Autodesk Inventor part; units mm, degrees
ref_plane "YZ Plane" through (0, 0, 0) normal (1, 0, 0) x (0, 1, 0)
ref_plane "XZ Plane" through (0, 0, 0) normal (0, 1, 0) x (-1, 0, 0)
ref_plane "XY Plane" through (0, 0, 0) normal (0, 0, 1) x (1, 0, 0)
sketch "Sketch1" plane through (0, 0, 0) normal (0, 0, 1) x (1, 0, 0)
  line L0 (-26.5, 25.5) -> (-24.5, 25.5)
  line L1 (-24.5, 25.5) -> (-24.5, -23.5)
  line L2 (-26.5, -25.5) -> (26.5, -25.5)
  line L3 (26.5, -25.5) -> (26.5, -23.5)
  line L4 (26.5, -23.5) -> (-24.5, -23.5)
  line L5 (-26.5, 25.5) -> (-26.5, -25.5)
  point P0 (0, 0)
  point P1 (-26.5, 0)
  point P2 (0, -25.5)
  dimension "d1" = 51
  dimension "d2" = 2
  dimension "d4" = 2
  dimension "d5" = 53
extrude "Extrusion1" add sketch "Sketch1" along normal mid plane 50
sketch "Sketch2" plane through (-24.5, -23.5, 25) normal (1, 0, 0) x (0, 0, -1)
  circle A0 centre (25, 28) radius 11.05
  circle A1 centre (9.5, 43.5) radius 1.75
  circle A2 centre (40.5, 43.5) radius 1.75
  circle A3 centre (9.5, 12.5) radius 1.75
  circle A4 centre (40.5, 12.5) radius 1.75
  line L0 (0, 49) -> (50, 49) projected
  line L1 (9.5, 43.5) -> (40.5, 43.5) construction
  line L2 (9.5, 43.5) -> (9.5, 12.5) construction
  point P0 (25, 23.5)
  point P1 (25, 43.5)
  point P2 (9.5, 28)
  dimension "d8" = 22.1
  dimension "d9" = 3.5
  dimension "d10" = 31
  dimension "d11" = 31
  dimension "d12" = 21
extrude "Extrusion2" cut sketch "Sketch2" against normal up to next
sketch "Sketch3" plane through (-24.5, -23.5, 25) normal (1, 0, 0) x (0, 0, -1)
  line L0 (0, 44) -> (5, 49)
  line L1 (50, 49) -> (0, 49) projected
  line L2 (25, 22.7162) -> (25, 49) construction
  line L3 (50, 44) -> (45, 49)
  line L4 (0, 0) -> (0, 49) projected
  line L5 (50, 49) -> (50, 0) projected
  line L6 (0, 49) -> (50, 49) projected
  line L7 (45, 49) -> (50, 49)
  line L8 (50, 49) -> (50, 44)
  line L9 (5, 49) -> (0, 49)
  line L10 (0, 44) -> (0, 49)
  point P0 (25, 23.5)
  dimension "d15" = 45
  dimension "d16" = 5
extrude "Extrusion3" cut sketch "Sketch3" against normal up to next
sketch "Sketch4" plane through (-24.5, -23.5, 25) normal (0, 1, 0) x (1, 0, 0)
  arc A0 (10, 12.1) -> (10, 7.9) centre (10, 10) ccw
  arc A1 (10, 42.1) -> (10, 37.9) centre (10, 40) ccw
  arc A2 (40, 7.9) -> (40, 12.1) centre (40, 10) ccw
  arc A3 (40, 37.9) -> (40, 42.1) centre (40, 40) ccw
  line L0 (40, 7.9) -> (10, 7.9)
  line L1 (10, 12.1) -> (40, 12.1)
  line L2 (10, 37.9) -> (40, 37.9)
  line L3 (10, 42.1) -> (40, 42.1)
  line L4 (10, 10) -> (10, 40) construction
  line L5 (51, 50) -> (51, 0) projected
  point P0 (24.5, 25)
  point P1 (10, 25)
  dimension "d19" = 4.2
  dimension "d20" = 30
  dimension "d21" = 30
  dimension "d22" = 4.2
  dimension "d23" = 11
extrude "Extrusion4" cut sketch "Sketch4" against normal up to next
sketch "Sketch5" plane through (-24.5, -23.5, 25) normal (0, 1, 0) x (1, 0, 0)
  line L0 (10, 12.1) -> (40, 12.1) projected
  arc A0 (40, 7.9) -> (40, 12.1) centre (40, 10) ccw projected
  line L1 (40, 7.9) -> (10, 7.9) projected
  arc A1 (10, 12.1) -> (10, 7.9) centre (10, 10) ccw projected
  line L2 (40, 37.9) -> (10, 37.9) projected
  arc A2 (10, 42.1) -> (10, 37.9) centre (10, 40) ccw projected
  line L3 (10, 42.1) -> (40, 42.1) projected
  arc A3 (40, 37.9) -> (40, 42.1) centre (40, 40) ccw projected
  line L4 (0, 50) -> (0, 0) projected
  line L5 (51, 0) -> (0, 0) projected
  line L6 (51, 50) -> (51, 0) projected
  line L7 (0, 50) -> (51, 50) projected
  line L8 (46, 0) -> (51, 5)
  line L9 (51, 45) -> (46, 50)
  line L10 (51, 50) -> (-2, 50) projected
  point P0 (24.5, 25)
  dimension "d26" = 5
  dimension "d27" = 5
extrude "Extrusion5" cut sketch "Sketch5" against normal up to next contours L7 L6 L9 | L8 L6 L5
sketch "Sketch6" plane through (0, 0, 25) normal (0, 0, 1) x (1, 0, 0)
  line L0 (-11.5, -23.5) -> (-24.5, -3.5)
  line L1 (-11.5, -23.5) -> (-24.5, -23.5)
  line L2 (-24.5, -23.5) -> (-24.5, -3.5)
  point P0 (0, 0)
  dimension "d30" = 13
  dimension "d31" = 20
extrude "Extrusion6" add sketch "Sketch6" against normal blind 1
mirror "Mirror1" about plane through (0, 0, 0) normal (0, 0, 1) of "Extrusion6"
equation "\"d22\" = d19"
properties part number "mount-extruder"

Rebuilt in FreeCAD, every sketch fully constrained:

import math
import FreeCAD as App
import Part
import Sketcher
from FreeCAD import Vector

doc = App.newDocument("Part")
params = doc.addObject("Spreadsheet::Sheet", "Params")
for row, (alias, value) in enumerate([
    ("sketch1_width", "2 mm"),
    ("sketch1_width2", "53 mm"),
    ("pad1_length", "50 mm"),
    ("sketch2_diameter", "22.1 mm"),
    ("sketch2_diameter2", "3.5 mm"),
    ("sketch3_width", "5 mm"),
    ("sketch4_radius", "2.1 mm"),
    ("sketch4_width", "30 mm"),
    ("sketch5_width", "5 mm"),
    ("sketch6_width", "13 mm"),
    ("sketch6_height", "20 mm"),
    ("pad2_length", "1 mm"),
], start=1):
    params.set(f"A{row}", alias)
    params.set(f"B{row}", "=" + value)
    params.setAlias(f"B{row}", alias)

body = doc.addObject("PartDesign::Body", "Body")

sketch1 = body.newObject("Sketcher::SketchObject", "Sketch")
sketch1.AttachmentSupport = (doc.getObject("XY_Plane"), [""])
sketch1.MapMode = "FlatFace"
sketch1.addGeometry([
    Part.LineSegment(Vector(-24.5, 25.5, 0), Vector(-26.5, 25.5, 0)),
    Part.LineSegment(Vector(-26.5, 25.5, 0), Vector(-26.5, -25.5, 0)),
    Part.LineSegment(Vector(-26.5, -25.5, 0), Vector(26.5, -25.5, 0)),
    Part.LineSegment(Vector(26.5, -25.5, 0), Vector(26.5, -23.5, 0)),
    Part.LineSegment(Vector(26.5, -23.5, 0), Vector(-24.5, -23.5, 0)),
    Part.LineSegment(Vector(-24.5, -23.5, 0), Vector(-24.5, 25.5, 0)),
], False)
sketch1.addConstraint([
    Sketcher.Constraint("Coincident", 0, 2, 1, 1),
    Sketcher.Constraint("Coincident", 1, 2, 2, 1),
    Sketcher.Constraint("Coincident", 2, 2, 3, 1),
    Sketcher.Constraint("Coincident", 3, 2, 4, 1),
    Sketcher.Constraint("Coincident", 4, 2, 5, 1),
    Sketcher.Constraint("Coincident", 5, 2, 0, 1),
    Sketcher.Constraint("Horizontal", 0),
    Sketcher.Constraint("Vertical", 1),
    Sketcher.Constraint("Horizontal", 2),
    Sketcher.Constraint("Vertical", 3),
    Sketcher.Constraint("Horizontal", 4),
    Sketcher.Constraint("Vertical", 5),
    Sketcher.Constraint("Symmetric", 0, 2, 2, 2, -1, 1),
    Sketcher.Constraint("Equal", 4, 1),
    Sketcher.Constraint("Equal", 0, 3),
    Sketcher.Constraint("DistanceX", 0, 2, 0, 1, 2.0),
    Sketcher.Constraint("DistanceX", 2, 1, 2, 2, 53.0),
])
sketch1.setExpression("Constraints[15]", "Params.sketch1_width")
sketch1.setExpression("Constraints[16]", "Params.sketch1_width2")
pad1 = body.newObject("PartDesign::Pad", "Pad")
pad1.Profile = sketch1
pad1.setExpression("Length", "Params.pad1_length")
pad1.Midplane = True

sketch2 = body.newObject("Sketcher::SketchObject", "Sketch001")
sketch2.AttachmentSupport = (doc.getObject("YZ_Plane"), [""])
sketch2.MapMode = "FlatFace"
sketch2.AttachmentOffset = App.Placement(Vector(0, 0, -24.5), App.Rotation())
sketch2.addGeometry([
    Part.Circle(Vector(4.5, 0, 0), Vector(0, 0, 1), 11.05),
    Part.Circle(Vector(20, 15.5, 0), Vector(0, 0, 1), 1.75),
    Part.Circle(Vector(20, -15.5, 0), Vector(0, 0, 1), 1.75),
    Part.Circle(Vector(-11, 15.5, 0), Vector(0, 0, 1), 1.75),
    Part.Circle(Vector(-11, -15.5, 0), Vector(0, 0, 1), 1.75),
], False)
sketch2.addConstraint([
    Sketcher.Constraint("Equal", 1, 2),
    Sketcher.Constraint("Equal", 2, 3),
    Sketcher.Constraint("Equal", 3, 4),
    Sketcher.Constraint("Symmetric", 1, 3, 2, 3, -1),
    Sketcher.Constraint("Symmetric", 3, 3, 4, 3, -1),
    Sketcher.Constraint("PointOnObject", 0, 3, -1),
    Sketcher.Constraint("Horizontal", 1, 3, 3, 3),
    Sketcher.Constraint("Diameter", 0, 22.1),
    Sketcher.Constraint("Diameter", 1, 3.5),
    Sketcher.Constraint("DistanceY", 2, 3, 1, 3, 31.0),
    Sketcher.Constraint("DistanceX", 3, 3, 1, 3, 31.0),
    Sketcher.Constraint("DistanceX", -1, 1, 1, 3, 20.0),
    Sketcher.Constraint("DistanceX", -1, 1, 0, 3, 4.5),
])
sketch2.setExpression("Constraints[7]", "Params.sketch2_diameter")
sketch2.setExpression("Constraints[8]", "Params.sketch2_diameter2")
pocket1 = body.newObject("PartDesign::Pocket", "Pocket")
pocket1.Profile = sketch2
pocket1.Type = "UpToFirst"

sketch3 = body.newObject("Sketcher::SketchObject", "Sketch002")
sketch3.AttachmentSupport = (doc.getObject("YZ_Plane"), [""])
sketch3.MapMode = "FlatFace"
sketch3.AttachmentOffset = App.Placement(Vector(0, 0, -24.5), App.Rotation())
sketch3.addGeometry([
    Part.LineSegment(Vector(25.5, 25, 0), Vector(20.5, 25, 0)),
    Part.LineSegment(Vector(20.5, 25, 0), Vector(25.5, 20, 0)),
    Part.LineSegment(Vector(25.5, 20, 0), Vector(25.5, 25, 0)),
    Part.LineSegment(Vector(25.5, -25, 0), Vector(25.5, -20, 0)),
    Part.LineSegment(Vector(25.5, -20, 0), Vector(20.5, -25, 0)),
    Part.LineSegment(Vector(20.5, -25, 0), Vector(25.5, -25, 0)),
], False)
sketch3.addConstraint([
    Sketcher.Constraint("Coincident", 0, 2, 1, 1),
    Sketcher.Constraint("Coincident", 1, 2, 2, 1),
    Sketcher.Constraint("Coincident", 2, 2, 0, 1),
    Sketcher.Constraint("Coincident", 3, 2, 4, 1),
    Sketcher.Constraint("Coincident", 4, 2, 5, 1),
    Sketcher.Constraint("Coincident", 5, 2, 3, 1),
    Sketcher.Constraint("Horizontal", 0),
    Sketcher.Constraint("Vertical", 2),
    Sketcher.Constraint("Vertical", 3),
    Sketcher.Constraint("Horizontal", 5),
    Sketcher.Constraint("Symmetric", 1, 2, 3, 2, -1),
    Sketcher.Constraint("Symmetric", 0, 2, 4, 2, -1),
    Sketcher.Constraint("Perpendicular", 1, 4),
    Sketcher.Constraint("DistanceX", 0, 2, 0, 1, 5.0),
    Sketcher.Constraint("DistanceY", 3, 2, 2, 2, 45.0),
    Sketcher.Constraint("DistanceX", -1, 1, 0, 2, 20.5),
])
sketch3.setExpression("Constraints[13]", "Params.sketch3_width")
pocket2 = body.newObject("PartDesign::Pocket", "Pocket001")
pocket2.Profile = sketch3
pocket2.Type = "UpToFirst"

sketch4 = body.newObject("Sketcher::SketchObject", "Sketch003")
sketch4.AttachmentSupport = (doc.getObject("XZ_Plane"), [""])
sketch4.MapMode = "FlatFace"
sketch4.AttachmentOffset = App.Placement(Vector(0, 0, 23.5), App.Rotation())
sketch4.addGeometry([
    Part.LineSegment(Vector(15.5, 12.9, 0), Vector(-14.5, 12.9, 0)),
    Part.ArcOfCircle(Part.Circle(Vector(-14.5, 15, 0), Vector(0, 0, 1), 2.1), math.radians(90), math.radians(270)),
    Part.LineSegment(Vector(-14.5, 17.1, 0), Vector(15.5, 17.1, 0)),
    Part.ArcOfCircle(Part.Circle(Vector(15.5, 15, 0), Vector(0, 0, 1), 2.1), math.radians(-90), math.radians(90)),
    Part.LineSegment(Vector(15.5, -17.1, 0), Vector(-14.5, -17.1, 0)),
    Part.ArcOfCircle(Part.Circle(Vector(-14.5, -15, 0), Vector(0, 0, 1), 2.1), math.radians(90), math.radians(270)),
    Part.LineSegment(Vector(-14.5, -12.9, 0), Vector(15.5, -12.9, 0)),
    Part.ArcOfCircle(Part.Circle(Vector(15.5, -15, 0), Vector(0, 0, 1), 2.1), math.radians(-90), math.radians(90)),
], False)
sketch4.addConstraint([
    Sketcher.Constraint("Tangent", 0, 2, 1, 2),
    Sketcher.Constraint("Tangent", 1, 1, 2, 1),
    Sketcher.Constraint("Tangent", 2, 2, 3, 2),
    Sketcher.Constraint("Tangent", 3, 1, 0, 1),
    Sketcher.Constraint("Tangent", 4, 2, 5, 2),
    Sketcher.Constraint("Tangent", 5, 1, 6, 1),
    Sketcher.Constraint("Tangent", 6, 2, 7, 2),
    Sketcher.Constraint("Tangent", 7, 1, 4, 1),
    Sketcher.Constraint("Horizontal", 0),
    Sketcher.Constraint("Horizontal", 2),
    Sketcher.Constraint("Horizontal", 4),
    Sketcher.Constraint("Horizontal", 6),
    Sketcher.Constraint("Equal", 3, 5),
    Sketcher.Constraint("Symmetric", 1, 3, 5, 3, -1),
    Sketcher.Constraint("Vertical", 3, 3, 7, 3),
    Sketcher.Constraint("Radius", 1, 2.1),
    Sketcher.Constraint("DistanceX", 0, 2, 0, 1, 30.0),
    Sketcher.Constraint("DistanceY", 5, 3, 1, 3, 30.0),
    Sketcher.Constraint("DistanceX", 1, 3, -1, 1, 14.5),
])
sketch4.setExpression("Constraints[15]", "Params.sketch4_radius")
sketch4.setExpression("Constraints[16]", "Params.sketch4_width")
pocket3 = body.newObject("PartDesign::Pocket", "Pocket002")
pocket3.Profile = sketch4
pocket3.Type = "UpToFirst"
pocket3.Reversed = True

sketch5 = body.newObject("Sketcher::SketchObject", "Sketch004")
sketch5.AttachmentSupport = (doc.getObject("XZ_Plane"), [""])
sketch5.MapMode = "FlatFace"
sketch5.AttachmentOffset = App.Placement(Vector(0, 0, 23.5), App.Rotation())
sketch5.addGeometry([
    Part.LineSegment(Vector(26.5, -25, 0), Vector(21.5, -25, 0)),
    Part.LineSegment(Vector(21.5, -25, 0), Vector(26.5, -20, 0)),
    Part.LineSegment(Vector(26.5, -20, 0), Vector(26.5, -25, 0)),
    Part.LineSegment(Vector(26.5, 20, 0), Vector(21.5, 25, 0)),
    Part.LineSegment(Vector(21.5, 25, 0), Vector(26.5, 25, 0)),
    Part.LineSegment(Vector(26.5, 25, 0), Vector(26.5, 20, 0)),
], False)
sketch5.addConstraint([
    Sketcher.Constraint("Coincident", 0, 2, 1, 1),
    Sketcher.Constraint("Coincident", 1, 2, 2, 1),
    Sketcher.Constraint("Coincident", 2, 2, 0, 1),
    Sketcher.Constraint("Coincident", 3, 2, 4, 1),
    Sketcher.Constraint("Coincident", 4, 2, 5, 1),
    Sketcher.Constraint("Coincident", 5, 2, 3, 1),
    Sketcher.Constraint("Horizontal", 0),
    Sketcher.Constraint("Vertical", 2),
    Sketcher.Constraint("Horizontal", 4),
    Sketcher.Constraint("Vertical", 5),
    Sketcher.Constraint("Symmetric", 0, 2, 3, 2, -1),
    Sketcher.Constraint("Symmetric", 1, 2, 5, 2, -1),
    Sketcher.Constraint("Perpendicular", 1, 3),
    Sketcher.Constraint("DistanceX", 0, 2, 0, 1, 5.0),
    Sketcher.Constraint("DistanceY", 0, 2, -1, 1, 25.0),
    Sketcher.Constraint("DistanceX", -1, 1, 0, 2, 21.5),
])
sketch5.setExpression("Constraints[13]", "Params.sketch5_width")
pocket4 = body.newObject("PartDesign::Pocket", "Pocket003")
pocket4.Profile = sketch5
pocket4.Type = "UpToFirst"
pocket4.Reversed = True

sketch6 = body.newObject("Sketcher::SketchObject", "Sketch005")
sketch6.AttachmentSupport = (doc.getObject("XY_Plane"), [""])
sketch6.MapMode = "FlatFace"
sketch6.AttachmentOffset = App.Placement(Vector(0, 0, 25), App.Rotation())
sketch6.addGeometry([
    Part.LineSegment(Vector(-24.5, -23.5, 0), Vector(-11.5, -23.5, 0)),
    Part.LineSegment(Vector(-11.5, -23.5, 0), Vector(-24.5, -3.5, 0)),
    Part.LineSegment(Vector(-24.5, -3.5, 0), Vector(-24.5, -23.5, 0)),
], False)
sketch6.addConstraint([
    Sketcher.Constraint("Coincident", 0, 2, 1, 1),
    Sketcher.Constraint("Coincident", 1, 2, 2, 1),
    Sketcher.Constraint("Coincident", 2, 2, 0, 1),
    Sketcher.Constraint("Horizontal", 0),
    Sketcher.Constraint("Vertical", 2),
    Sketcher.Constraint("DistanceX", 0, 1, 0, 2, 13.0),
    Sketcher.Constraint("DistanceY", 2, 2, 2, 1, 20.0),
    Sketcher.Constraint("DistanceX", 0, 2, -1, 1, 11.5),
    Sketcher.Constraint("DistanceY", 0, 2, -1, 1, 23.5),
])
sketch6.setExpression("Constraints[5]", "Params.sketch6_width")
sketch6.setExpression("Constraints[6]", "Params.sketch6_height")
pad2 = body.newObject("PartDesign::Pad", "Pad001")
pad2.Profile = sketch6
pad2.setExpression("Length", "Params.pad2_length")
pad2.Reversed = True
doc.recompute()

mirrored = body.newObject("PartDesign::Mirrored", "Mirrored")
mirrored.Originals = [pad2]
mirrored.MirrorPlane = (doc.getObject("XY_Plane"), [""])
body.Tip = mirrored

doc.recompute()
